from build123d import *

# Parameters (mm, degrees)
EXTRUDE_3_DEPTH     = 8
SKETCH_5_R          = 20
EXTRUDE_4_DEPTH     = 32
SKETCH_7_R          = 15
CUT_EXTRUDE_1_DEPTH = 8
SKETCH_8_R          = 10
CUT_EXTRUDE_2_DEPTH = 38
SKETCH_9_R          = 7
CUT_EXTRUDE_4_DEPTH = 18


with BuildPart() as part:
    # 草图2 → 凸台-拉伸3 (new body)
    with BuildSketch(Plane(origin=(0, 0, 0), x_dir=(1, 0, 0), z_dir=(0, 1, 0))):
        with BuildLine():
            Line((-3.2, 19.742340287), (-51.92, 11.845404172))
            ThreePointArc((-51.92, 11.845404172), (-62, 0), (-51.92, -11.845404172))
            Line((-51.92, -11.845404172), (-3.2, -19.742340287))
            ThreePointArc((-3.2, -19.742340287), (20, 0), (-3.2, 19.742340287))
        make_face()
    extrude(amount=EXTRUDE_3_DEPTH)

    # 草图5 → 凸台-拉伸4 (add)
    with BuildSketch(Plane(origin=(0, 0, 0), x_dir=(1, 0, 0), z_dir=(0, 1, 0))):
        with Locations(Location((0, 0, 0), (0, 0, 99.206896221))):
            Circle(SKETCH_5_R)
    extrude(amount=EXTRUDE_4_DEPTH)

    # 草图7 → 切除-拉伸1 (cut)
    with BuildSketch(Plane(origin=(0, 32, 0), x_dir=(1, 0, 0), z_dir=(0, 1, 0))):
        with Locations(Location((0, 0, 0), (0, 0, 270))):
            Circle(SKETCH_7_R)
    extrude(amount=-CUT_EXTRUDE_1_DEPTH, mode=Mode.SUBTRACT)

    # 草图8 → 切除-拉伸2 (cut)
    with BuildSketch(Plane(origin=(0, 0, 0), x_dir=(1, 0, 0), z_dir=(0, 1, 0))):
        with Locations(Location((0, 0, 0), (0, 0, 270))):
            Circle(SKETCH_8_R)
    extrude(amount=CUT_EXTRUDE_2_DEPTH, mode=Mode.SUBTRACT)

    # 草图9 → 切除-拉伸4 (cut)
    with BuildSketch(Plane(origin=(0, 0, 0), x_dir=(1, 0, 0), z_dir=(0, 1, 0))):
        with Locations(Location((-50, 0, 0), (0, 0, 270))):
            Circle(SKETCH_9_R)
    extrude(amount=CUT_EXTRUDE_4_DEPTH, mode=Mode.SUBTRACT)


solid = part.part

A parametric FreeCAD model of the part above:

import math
import FreeCAD as App
import Part
import Sketcher
from FreeCAD import Vector

doc = App.newDocument("Part")
body = doc.addObject("PartDesign::Body", "Body")

# Sketch on XZ plane
sketch1 = body.newObject("Sketcher::SketchObject", "Sketch")
sketch1.AttachmentSupport = (doc.getObject("XZ_Plane"), [""])
sketch1.MapMode = "FlatFace"
sketch1.addGeometry([
    Part.LineSegment(Vector(-3.2, -19.74234, 0), Vector(-51.92, -11.845404, 0)),
    Part.ArcOfCircle(Part.Circle(Vector(-50, 0, 0), Vector(0, 0, 1), 12), math.radians(99.206896), math.radians(260.793104)),
    Part.LineSegment(Vector(-51.92, 11.845404, 0), Vector(-3.2, 19.74234, 0)),
    Part.ArcOfCircle(Part.Circle(Vector(0, 0, 0), Vector(0, 0, 1), 20), math.radians(-99.206896), math.radians(99.206896)),
], False)
sketch1.addConstraint([
    Sketcher.Constraint("Tangent", 0, 2, 1, 2),
    Sketcher.Constraint("Tangent", 1, 1, 2, 1),
    Sketcher.Constraint("Tangent", 2, 2, 3, 2),
    Sketcher.Constraint("Tangent", 3, 1, 0, 1),
    Sketcher.Constraint("Coincident", 3, 3, -1, 1),
    Sketcher.Constraint("PointOnObject", 1, 3, -1),
    Sketcher.Constraint("Radius", 1, 12.0),
    Sketcher.Constraint("Radius", 3, 20.0),
    Sketcher.Constraint("DistanceX", 1, 3, -1, 1, 50.0),
])
pad1 = body.newObject("PartDesign::Pad", "Pad")
pad1.Profile = sketch1
pad1.Length = 8
pad1.Reversed = True

# Sketch on XZ plane
sketch2 = body.newObject("Sketcher::SketchObject", "Sketch001")
sketch2.AttachmentSupport = (doc.getObject("XZ_Plane"), [""])
sketch2.MapMode = "FlatFace"
sketch2.addGeometry(Part.Circle(Vector(0, 0, 0), Vector(0, 0, 1), 20), False)
sketch2.addConstraint([
    Sketcher.Constraint("Coincident", 0, 3, -1, 1),
    Sketcher.Constraint("Diameter", 0, 40.0),
])
pad2 = body.newObject("PartDesign::Pad", "Pad001")
pad2.Profile = sketch2
pad2.Length = 32
pad2.Reversed = True

# Sketch on XZ plane
sketch3 = body.newObject("Sketcher::SketchObject", "Sketch002")
sketch3.AttachmentSupport = (doc.getObject("XZ_Plane"), [""])
sketch3.MapMode = "FlatFace"
sketch3.AttachmentOffset = App.Placement(Vector(0, 0, -32), App.Rotation())
sketch3.addGeometry(Part.Circle(Vector(0, 0, 0), Vector(0, 0, 1), 15), False)
sketch3.addConstraint([
    Sketcher.Constraint("Coincident", 0, 3, -1, 1),
    Sketcher.Constraint("Diameter", 0, 30.0),
])
pocket1 = body.newObject("PartDesign::Pocket", "Pocket")
pocket1.Profile = sketch3
pocket1.Length = 8
pocket1.Reversed = True

# Sketch on XZ plane
sketch4 = body.newObject("Sketcher::SketchObject", "Sketch003")
sketch4.AttachmentSupport = (doc.getObject("XZ_Plane"), [""])
sketch4.MapMode = "FlatFace"
sketch4.addGeometry(Part.Circle(Vector(0, 0, 0), Vector(0, 0, 1), 10), False)
sketch4.addConstraint([
    Sketcher.Constraint("Coincident", 0, 3, -1, 1),
    Sketcher.Constraint("Diameter", 0, 20.0),
])
pocket2 = body.newObject("PartDesign::Pocket", "Pocket001")
pocket2.Profile = sketch4
pocket2.Length = 38

# Sketch on XZ plane
sketch5 = body.newObject("Sketcher::SketchObject", "Sketch004")
sketch5.AttachmentSupport = (doc.getObject("XZ_Plane"), [""])
sketch5.MapMode = "FlatFace"
sketch5.addGeometry(Part.Circle(Vector(-50, 0, 0), Vector(0, 0, 1), 7), False)
sketch5.addConstraint([
    Sketcher.Constraint("PointOnObject", 0, 3, -1),
    Sketcher.Constraint("Diameter", 0, 14.0),
    Sketcher.Constraint("DistanceX", 0, 3, -1, 1, 50.0),
])
pocket3 = body.newObject("PartDesign::Pocket", "Pocket002")
pocket3.Profile = sketch5
pocket3.Length = 18

doc.recompute()
